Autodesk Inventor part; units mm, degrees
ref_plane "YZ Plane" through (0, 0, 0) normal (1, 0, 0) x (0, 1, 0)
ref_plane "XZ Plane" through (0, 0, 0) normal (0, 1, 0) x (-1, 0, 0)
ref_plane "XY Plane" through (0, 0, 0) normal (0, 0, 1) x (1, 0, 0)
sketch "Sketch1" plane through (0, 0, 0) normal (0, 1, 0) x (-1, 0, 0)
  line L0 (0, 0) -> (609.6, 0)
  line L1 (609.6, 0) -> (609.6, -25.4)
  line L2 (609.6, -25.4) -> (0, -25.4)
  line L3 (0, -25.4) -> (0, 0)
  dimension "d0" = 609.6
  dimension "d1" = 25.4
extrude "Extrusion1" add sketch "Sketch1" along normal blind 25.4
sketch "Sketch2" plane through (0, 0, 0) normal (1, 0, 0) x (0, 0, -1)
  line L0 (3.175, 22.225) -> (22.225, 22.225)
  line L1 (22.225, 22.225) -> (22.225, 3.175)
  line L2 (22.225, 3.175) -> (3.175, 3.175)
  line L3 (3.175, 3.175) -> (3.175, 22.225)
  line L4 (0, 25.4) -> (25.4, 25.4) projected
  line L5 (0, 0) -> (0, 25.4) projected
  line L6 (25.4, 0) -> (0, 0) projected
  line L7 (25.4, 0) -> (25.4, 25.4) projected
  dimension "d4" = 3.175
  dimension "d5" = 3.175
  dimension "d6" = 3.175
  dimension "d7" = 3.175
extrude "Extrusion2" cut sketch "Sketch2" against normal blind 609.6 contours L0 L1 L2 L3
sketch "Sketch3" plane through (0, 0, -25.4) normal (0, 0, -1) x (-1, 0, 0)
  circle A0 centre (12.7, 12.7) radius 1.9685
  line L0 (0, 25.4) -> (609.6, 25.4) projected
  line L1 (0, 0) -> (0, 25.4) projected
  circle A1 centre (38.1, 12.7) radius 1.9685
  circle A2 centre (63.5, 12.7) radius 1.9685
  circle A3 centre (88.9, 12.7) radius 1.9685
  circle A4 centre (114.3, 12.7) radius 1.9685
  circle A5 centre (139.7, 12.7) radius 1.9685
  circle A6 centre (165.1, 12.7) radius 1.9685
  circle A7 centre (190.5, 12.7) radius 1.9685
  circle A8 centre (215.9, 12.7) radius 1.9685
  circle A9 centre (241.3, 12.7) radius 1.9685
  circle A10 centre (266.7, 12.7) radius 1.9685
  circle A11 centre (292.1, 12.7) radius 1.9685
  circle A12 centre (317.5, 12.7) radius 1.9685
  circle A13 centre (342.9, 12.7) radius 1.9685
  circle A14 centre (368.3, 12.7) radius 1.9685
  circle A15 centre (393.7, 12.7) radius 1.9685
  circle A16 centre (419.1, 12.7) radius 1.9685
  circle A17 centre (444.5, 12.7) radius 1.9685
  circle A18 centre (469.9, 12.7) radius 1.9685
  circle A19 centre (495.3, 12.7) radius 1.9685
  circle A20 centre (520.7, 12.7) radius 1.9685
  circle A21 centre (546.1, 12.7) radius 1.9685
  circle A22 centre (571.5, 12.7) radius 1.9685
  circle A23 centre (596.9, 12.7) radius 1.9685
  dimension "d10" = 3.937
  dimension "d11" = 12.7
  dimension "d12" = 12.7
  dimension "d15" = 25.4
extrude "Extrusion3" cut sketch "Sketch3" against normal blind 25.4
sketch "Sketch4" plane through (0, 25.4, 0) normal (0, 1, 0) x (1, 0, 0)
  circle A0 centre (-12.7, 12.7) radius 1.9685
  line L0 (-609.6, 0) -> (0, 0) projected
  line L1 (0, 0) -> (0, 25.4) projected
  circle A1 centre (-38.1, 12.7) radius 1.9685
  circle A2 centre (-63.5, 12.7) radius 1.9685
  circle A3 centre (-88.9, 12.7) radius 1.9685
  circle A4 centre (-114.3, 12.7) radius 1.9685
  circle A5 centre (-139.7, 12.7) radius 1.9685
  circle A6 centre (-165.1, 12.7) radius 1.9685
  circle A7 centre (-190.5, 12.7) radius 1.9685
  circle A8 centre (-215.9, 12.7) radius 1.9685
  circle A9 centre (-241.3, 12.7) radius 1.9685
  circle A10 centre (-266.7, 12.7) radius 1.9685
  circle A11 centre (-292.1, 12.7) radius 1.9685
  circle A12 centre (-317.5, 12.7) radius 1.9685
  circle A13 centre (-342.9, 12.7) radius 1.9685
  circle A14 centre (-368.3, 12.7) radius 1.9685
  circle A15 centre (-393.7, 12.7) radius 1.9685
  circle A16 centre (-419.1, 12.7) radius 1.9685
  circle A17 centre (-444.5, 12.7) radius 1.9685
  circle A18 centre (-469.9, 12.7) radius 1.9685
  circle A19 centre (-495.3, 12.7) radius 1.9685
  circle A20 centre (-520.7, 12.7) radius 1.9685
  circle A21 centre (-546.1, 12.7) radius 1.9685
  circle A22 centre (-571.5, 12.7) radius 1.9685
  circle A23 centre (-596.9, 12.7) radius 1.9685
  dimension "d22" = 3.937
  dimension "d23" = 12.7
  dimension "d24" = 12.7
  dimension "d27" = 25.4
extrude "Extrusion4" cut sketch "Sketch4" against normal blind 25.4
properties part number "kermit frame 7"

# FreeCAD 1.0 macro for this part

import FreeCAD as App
import Part
import Sketcher
Q = App.Units.Quantity


def add_polygon(sketch, points):
    """Adds a closed chain of lines whose ends are joined by coincident constraints."""
    first, n = sketch.GeometryCount, len(points)
    for a, b in zip(points, points[1:] + points[:1]):
        sketch.addGeometry(Part.LineSegment(App.Vector(*a, 0), App.Vector(*b, 0)), False)
    for i in range(n):
        sketch.addConstraint(Sketcher.Constraint("Coincident", first + i, 2, first + (i + 1) % n, 1))

doc = App.newDocument("Part")
params = doc.addObject("Spreadsheet::Sheet", "Params")
for row, (alias, value) in enumerate([
    ("sketch1_width", "24 in"),
    ("sketch1_height", "1 in"),
    ("pad1_length", "1 in"),
    ("sketch2_width", "0.75 in"),
    ("pocket1_length", "24 in"),
    ("sketch3_diameter", "0.155 in"),
    ("pocket2_length", "1 in"),
    ("sketch4_diameter", "0.155 in"),
    ("pocket3_length", "1 in"),
], start=1):
    params.set(f"A{row}", alias)
    params.set(f"B{row}", "=" + value)
    params.setAlias(f"B{row}", alias)

body = doc.addObject("PartDesign::Body", "Body")

# Sketch on XZ plane
sketch1 = body.newObject("Sketcher::SketchObject", "Sketch")
sketch1.AttachmentSupport = (doc.getObject("XZ_Plane"), [""])
sketch1.MapMode = "FlatFace"
add_polygon(sketch1, [(-609.6, 0), (0, 0), (0, -25.4), (-609.6, -25.4)])  # lines 0-3
sketch1.addConstraint([
    Sketcher.Constraint("Horizontal", 0),
    Sketcher.Constraint("Vertical", 1),
    Sketcher.Constraint("Horizontal", 2),
    Sketcher.Constraint("Vertical", 3),
    Sketcher.Constraint("Coincident", 0, 2, -1, 1),
    Sketcher.Constraint("DistanceX", 0, 1, 0, 2, Q("24 in")),
    Sketcher.Constraint("DistanceY", 1, 2, 1, 1, Q("1 in")),
])
sketch1.setExpression("Constraints[9]", "Params.sketch1_width")
sketch1.setExpression("Constraints[10]", "Params.sketch1_height")
pad1 = body.newObject("PartDesign::Pad", "Pad")
pad1.Profile = sketch1
pad1.setExpression("Length", "Params.pad1_length")
pad1.Reversed = True

# Sketch on YZ plane
sketch2 = body.newObject("Sketcher::SketchObject", "Sketch001")
sketch2.AttachmentSupport = (doc.getObject("YZ_Plane"), [""])
sketch2.MapMode = "FlatFace"
add_polygon(sketch2, [(22.225, -22.225), (22.225, -3.175), (3.175, -3.175), (3.175, -22.225)])  # lines 0-3
sketch2.addConstraint([
    Sketcher.Constraint("Vertical", 0),
    Sketcher.Constraint("Horizontal", 1),
    Sketcher.Constraint("Vertical", 2),
    Sketcher.Constraint("Horizontal", 3),
    Sketcher.Constraint("Equal", 3, 0),
    Sketcher.Constraint("DistanceY", 0, 2, -1, 1, Q("0.125 in")),
    Sketcher.Constraint("DistanceX", -1, 1, 1, 2, Q("0.125 in")),
    Sketcher.Constraint("DistanceX", 1, 2, 1, 1, Q("0.75 in")),
])
sketch2.setExpression("Constraints[11]", "Params.sketch2_width")
pocket1 = body.newObject("PartDesign::Pocket", "Pocket")
pocket1.Profile = sketch2
pocket1.setExpression("Length", "Params.pocket1_length")

# Sketch on XY plane
sketch3 = body.newObject("Sketcher::SketchObject", "Sketch002")
sketch3.AttachmentSupport = (doc.getObject("XY_Plane"), [""])
sketch3.MapMode = "FlatFace"
sketch3.AttachmentOffset = App.Placement(App.Vector(0, 0, -1 * 25.4), App.Rotation())
sketch3.addGeometry([
    Part.Circle(App.Vector(-12.7, 12.7, 0), App.Vector(0, 0, 1), 1.9685),  # 0
    Part.Circle(App.Vector(-38.1, 12.7, 0), App.Vector(0, 0, 1), 1.9685),  # 1
    Part.Circle(App.Vector(-63.5, 12.7, 0), App.Vector(0, 0, 1), 1.9685),  # 2
    Part.Circle(App.Vector(-88.9, 12.7, 0), App.Vector(0, 0, 1), 1.9685),  # 3
    Part.Circle(App.Vector(-114.3, 12.7, 0), App.Vector(0, 0, 1), 1.9685),  # 4
    Part.Circle(App.Vector(-139.7, 12.7, 0), App.Vector(0, 0, 1), 1.9685),  # 5
    Part.Circle(App.Vector(-165.1, 12.7, 0), App.Vector(0, 0, 1), 1.9685),  # 6
    Part.Circle(App.Vector(-190.5, 12.7, 0), App.Vector(0, 0, 1), 1.9685),  # 7
    Part.Circle(App.Vector(-215.9, 12.7, 0), App.Vector(0, 0, 1), 1.9685),  # 8
    Part.Circle(App.Vector(-241.3, 12.7, 0), App.Vector(0, 0, 1), 1.9685),  # 9
    Part.Circle(App.Vector(-266.7, 12.7, 0), App.Vector(0, 0, 1), 1.9685),  # 10
    Part.Circle(App.Vector(-292.1, 12.7, 0), App.Vector(0, 0, 1), 1.9685),  # 11
    Part.Circle(App.Vector(-317.5, 12.7, 0), App.Vector(0, 0, 1), 1.9685),  # 12
    Part.Circle(App.Vector(-342.9, 12.7, 0), App.Vector(0, 0, 1), 1.9685),  # 13
    Part.Circle(App.Vector(-368.3, 12.7, 0), App.Vector(0, 0, 1), 1.9685),  # 14
    Part.Circle(App.Vector(-393.7, 12.7, 0), App.Vector(0, 0, 1), 1.9685),  # 15
    Part.Circle(App.Vector(-419.1, 12.7, 0), App.Vector(0, 0, 1), 1.9685),  # 16
    Part.Circle(App.Vector(-444.5, 12.7, 0), App.Vector(0, 0, 1), 1.9685),  # 17
    Part.Circle(App.Vector(-469.9, 12.7, 0), App.Vector(0, 0, 1), 1.9685),  # 18
    Part.Circle(App.Vector(-495.3, 12.7, 0), App.Vector(0, 0, 1), 1.9685),  # 19
    Part.Circle(App.Vector(-520.7, 12.7, 0), App.Vector(0, 0, 1), 1.9685),  # 20
    Part.Circle(App.Vector(-546.1, 12.7, 0), App.Vector(0, 0, 1), 1.9685),  # 21
    Part.Circle(App.Vector(-571.5, 12.7, 0), App.Vector(0, 0, 1), 1.9685),  # 22
    Part.Circle(App.Vector(-596.9, 12.7, 0), App.Vector(0, 0, 1), 1.9685),  # 23
], False)
sketch3.addConstraint([
    Sketcher.Constraint("Equal", 0, 1),
    Sketcher.Constraint("Equal", 1, 2),
    Sketcher.Constraint("Equal", 2, 3),
    Sketcher.Constraint("Equal", 3, 4),
    Sketcher.Constraint("Equal", 4, 5),
    Sketcher.Constraint("Equal", 5, 6),
    Sketcher.Constraint("Equal", 6, 7),
    Sketcher.Constraint("Equal", 7, 8),
    Sketcher.Constraint("Equal", 8, 9),
    Sketcher.Constraint("Equal", 9, 10),
    Sketcher.Constraint("Equal", 10, 11),
    Sketcher.Constraint("Equal", 11, 12),
    Sketcher.Constraint("Equal", 12, 13),
    Sketcher.Constraint("Equal", 13, 14),
    Sketcher.Constraint("Equal", 14, 15),
    Sketcher.Constraint("Equal", 15, 16),
    Sketcher.Constraint("Equal", 16, 17),
    Sketcher.Constraint("Equal", 17, 18),
    Sketcher.Constraint("Equal", 18, 19),
    Sketcher.Constraint("Equal", 19, 20),
    Sketcher.Constraint("Equal", 20, 21),
    Sketcher.Constraint("Equal", 21, 22),
    Sketcher.Constraint("Equal", 22, 23),
    Sketcher.Constraint("Horizontal", 0, 3, 1, 3),
    Sketcher.Constraint("Horizontal", 1, 3, 2, 3),
    Sketcher.Constraint("Horizontal", 2, 3, 3, 3),
    Sketcher.Constraint("Horizontal", 3, 3, 4, 3),
    Sketcher.Constraint("Horizontal", 4, 3, 5, 3),
    Sketcher.Constraint("Horizontal", 5, 3, 6, 3),
    Sketcher.Constraint("Horizontal", 6, 3, 7, 3),
    Sketcher.Constraint("Horizontal", 7, 3, 8, 3),
    Sketcher.Constraint("Horizontal", 8, 3, 9, 3),
    Sketcher.Constraint("Horizontal", 9, 3, 10, 3),
    Sketcher.Constraint("Horizontal", 10, 3, 11, 3),
    Sketcher.Constraint("Horizontal", 11, 3, 12, 3),
    Sketcher.Constraint("Horizontal", 12, 3, 13, 3),
    Sketcher.Constraint("Horizontal", 13, 3, 14, 3),
    Sketcher.Constraint("Horizontal", 14, 3, 15, 3),
    Sketcher.Constraint("Horizontal", 15, 3, 16, 3),
    Sketcher.Constraint("Horizontal", 16, 3, 17, 3),
    Sketcher.Constraint("Horizontal", 17, 3, 18, 3),
    Sketcher.Constraint("Horizontal", 18, 3, 19, 3),
    Sketcher.Constraint("Horizontal", 19, 3, 20, 3),
    Sketcher.Constraint("Horizontal", 20, 3, 21, 3),
    Sketcher.Constraint("Horizontal", 21, 3, 22, 3),
    Sketcher.Constraint("Horizontal", 22, 3, 23, 3),
    Sketcher.Constraint("Diameter", 0, Q("0.155 in")),
    Sketcher.Constraint("DistanceX", 1, 3, 0, 3, Q("1 in")),
    Sketcher.Constraint("DistanceX", 2, 3, 1, 3, Q("1 in")),
    Sketcher.Constraint("DistanceX", 3, 3, 2, 3, Q("1 in")),
    Sketcher.Constraint("DistanceX", 4, 3, 3, 3, Q("1 in")),
    Sketcher.Constraint("DistanceX", 5, 3, 4, 3, Q("1 in")),
    Sketcher.Constraint("DistanceX", 6, 3, 5, 3, Q("1 in")),
    Sketcher.Constraint("DistanceX", 7, 3, 6, 3, Q("1 in")),
    Sketcher.Constraint("DistanceX", 8, 3, 7, 3, Q("1 in")),
    Sketcher.Constraint("DistanceX", 9, 3, 8, 3, Q("1 in")),
    Sketcher.Constraint("DistanceX", 10, 3, 9, 3, Q("1 in")),
    Sketcher.Constraint("DistanceX", 11, 3, 10, 3, Q("1 in")),
    Sketcher.Constraint("DistanceX", 12, 3, 11, 3, Q("1 in")),
    Sketcher.Constraint("DistanceX", 13, 3, 12, 3, Q("1 in")),
    Sketcher.Constraint("DistanceX", 14, 3, 13, 3, Q("1 in")),
    Sketcher.Constraint("DistanceX", 15, 3, 14, 3, Q("1 in")),
    Sketcher.Constraint("DistanceX", 16, 3, 15, 3, Q("1 in")),
    Sketcher.Constraint("DistanceX", 17, 3, 16, 3, Q("1 in")),
    Sketcher.Constraint("DistanceX", 18, 3, 17, 3, Q("1 in")),
    Sketcher.Constraint("DistanceX", 19, 3, 18, 3, Q("1 in")),
    Sketcher.Constraint("DistanceX", 20, 3, 19, 3, Q("1 in")),
    Sketcher.Constraint("DistanceX", 21, 3, 20, 3, Q("1 in")),
    Sketcher.Constraint("DistanceX", 22, 3, 21, 3, Q("1 in")),
    Sketcher.Constraint("DistanceX", 23, 3, 22, 3, Q("1 in")),
    Sketcher.Constraint("DistanceX", 0, 3, -1, 1, Q("0.5 in")),
    Sketcher.Constraint("DistanceY", -1, 1, 0, 3, Q("0.5 in")),
])
sketch3.setExpression("Constraints[46]", "Params.sketch3_diameter")
pocket2 = body.newObject("PartDesign::Pocket", "Pocket001")
pocket2.Profile = sketch3
pocket2.setExpression("Length", "Params.pocket2_length")
pocket2.Reversed = True

# Sketch on XZ plane
sketch4 = body.newObject("Sketcher::SketchObject", "Sketch003")
sketch4.AttachmentSupport = (doc.getObject("XZ_Plane"), [""])
sketch4.MapMode = "FlatFace"
sketch4.AttachmentOffset = App.Placement(App.Vector(0, 0, -1 * 25.4), App.Rotation())
sketch4.addGeometry([
    Part.Circle(App.Vector(-12.7, -12.7, 0), App.Vector(0, 0, 1), 1.9685),  # 0
    Part.Circle(App.Vector(-38.1, -12.7, 0), App.Vector(0, 0, 1), 1.9685),  # 1
    Part.Circle(App.Vector(-63.5, -12.7, 0), App.Vector(0, 0, 1), 1.9685),  # 2
    Part.Circle(App.Vector(-88.9, -12.7, 0), App.Vector(0, 0, 1), 1.9685),  # 3
    Part.Circle(App.Vector(-114.3, -12.7, 0), App.Vector(0, 0, 1), 1.9685),  # 4
    Part.Circle(App.Vector(-139.7, -12.7, 0), App.Vector(0, 0, 1), 1.9685),  # 5
    Part.Circle(App.Vector(-165.1, -12.7, 0), App.Vector(0, 0, 1), 1.9685),  # 6
    Part.Circle(App.Vector(-190.5, -12.7, 0), App.Vector(0, 0, 1), 1.9685),  # 7
    Part.Circle(App.Vector(-215.9, -12.7, 0), App.Vector(0, 0, 1), 1.9685),  # 8
    Part.Circle(App.Vector(-241.3, -12.7, 0), App.Vector(0, 0, 1), 1.9685),  # 9
    Part.Circle(App.Vector(-266.7, -12.7, 0), App.Vector(0, 0, 1), 1.9685),  # 10
    Part.Circle(App.Vector(-292.1, -12.7, 0), App.Vector(0, 0, 1), 1.9685),  # 11
    Part.Circle(App.Vector(-317.5, -12.7, 0), App.Vector(0, 0, 1), 1.9685),  # 12
    Part.Circle(App.Vector(-342.9, -12.7, 0), App.Vector(0, 0, 1), 1.9685),  # 13
    Part.Circle(App.Vector(-368.3, -12.7, 0), App.Vector(0, 0, 1), 1.9685),  # 14
    Part.Circle(App.Vector(-393.7, -12.7, 0), App.Vector(0, 0, 1), 1.9685),  # 15
    Part.Circle(App.Vector(-419.1, -12.7, 0), App.Vector(0, 0, 1), 1.9685),  # 16
    Part.Circle(App.Vector(-444.5, -12.7, 0), App.Vector(0, 0, 1), 1.9685),  # 17
    Part.Circle(App.Vector(-469.9, -12.7, 0), App.Vector(0, 0, 1), 1.9685),  # 18
    Part.Circle(App.Vector(-495.3, -12.7, 0), App.Vector(0, 0, 1), 1.9685),  # 19
    Part.Circle(App.Vector(-520.7, -12.7, 0), App.Vector(0, 0, 1), 1.9685),  # 20
    Part.Circle(App.Vector(-546.1, -12.7, 0), App.Vector(0, 0, 1), 1.9685),  # 21
    Part.Circle(App.Vector(-571.5, -12.7, 0), App.Vector(0, 0, 1), 1.9685),  # 22
    Part.Circle(App.Vector(-596.9, -12.7, 0), App.Vector(0, 0, 1), 1.9685),  # 23
], False)
sketch4.addConstraint([
    Sketcher.Constraint("Equal", 0, 1),
    Sketcher.Constraint("Equal", 1, 2),
    Sketcher.Constraint("Equal", 2, 3),
    Sketcher.Constraint("Equal", 3, 4),
    Sketcher.Constraint("Equal", 4, 5),
    Sketcher.Constraint("Equal", 5, 6),
    Sketcher.Constraint("Equal", 6, 7),
    Sketcher.Constraint("Equal", 7, 8),
    Sketcher.Constraint("Equal", 8, 9),
    Sketcher.Constraint("Equal", 9, 10),
    Sketcher.Constraint("Equal", 10, 11),
    Sketcher.Constraint("Equal", 11, 12),
    Sketcher.Constraint("Equal", 12, 13),
    Sketcher.Constraint("Equal", 13, 14),
    Sketcher.Constraint("Equal", 14, 15),
    Sketcher.Constraint("Equal", 15, 16),
    Sketcher.Constraint("Equal", 16, 17),
    Sketcher.Constraint("Equal", 17, 18),
    Sketcher.Constraint("Equal", 18, 19),
    Sketcher.Constraint("Equal", 19, 20),
    Sketcher.Constraint("Equal", 20, 21),
    Sketcher.Constraint("Equal", 21, 22),
    Sketcher.Constraint("Equal", 22, 23),
    Sketcher.Constraint("Horizontal", 0, 3, 1, 3),
    Sketcher.Constraint("Horizontal", 1, 3, 2, 3),
    Sketcher.Constraint("Horizontal", 2, 3, 3, 3),
    Sketcher.Constraint("Horizontal", 3, 3, 4, 3),
    Sketcher.Constraint("Horizontal", 4, 3, 5, 3),
    Sketcher.Constraint("Horizontal", 5, 3, 6, 3),
    Sketcher.Constraint("Horizontal", 6, 3, 7, 3),
    Sketcher.Constraint("Horizontal", 7, 3, 8, 3),
    Sketcher.Constraint("Horizontal", 8, 3, 9, 3),
    Sketcher.Constraint("Horizontal", 9, 3, 10, 3),
    Sketcher.Constraint("Horizontal", 10, 3, 11, 3),
    Sketcher.Constraint("Horizontal", 11, 3, 12, 3),
    Sketcher.Constraint("Horizontal", 12, 3, 13, 3),
    Sketcher.Constraint("Horizontal", 13, 3, 14, 3),
    Sketcher.Constraint("Horizontal", 14, 3, 15, 3),
    Sketcher.Constraint("Horizontal", 15, 3, 16, 3),
    Sketcher.Constraint("Horizontal", 16, 3, 17, 3),
    Sketcher.Constraint("Horizontal", 17, 3, 18, 3),
    Sketcher.Constraint("Horizontal", 18, 3, 19, 3),
    Sketcher.Constraint("Horizontal", 19, 3, 20, 3),
    Sketcher.Constraint("Horizontal", 20, 3, 21, 3),
    Sketcher.Constraint("Horizontal", 21, 3, 22, 3),
    Sketcher.Constraint("Horizontal", 22, 3, 23, 3),
    Sketcher.Constraint("Diameter", 0, Q("0.155 in")),
    Sketcher.Constraint("DistanceX", 1, 3, 0, 3, Q("1 in")),
    Sketcher.Constraint("DistanceX", 2, 3, 1, 3, Q("1 in")),
    Sketcher.Constraint("DistanceX", 3, 3, 2, 3, Q("1 in")),
    Sketcher.Constraint("DistanceX", 4, 3, 3, 3, Q("1 in")),
    Sketcher.Constraint("DistanceX", 5, 3, 4, 3, Q("1 in")),
    Sketcher.Constraint("DistanceX", 6, 3, 5, 3, Q("1 in")),
    Sketcher.Constraint("DistanceX", 7, 3, 6, 3, Q("1 in")),
    Sketcher.Constraint("DistanceX", 8, 3, 7, 3, Q("1 in")),
    Sketcher.Constraint("DistanceX", 9, 3, 8, 3, Q("1 in")),
    Sketcher.Constraint("DistanceX", 10, 3, 9, 3, Q("1 in")),
    Sketcher.Constraint("DistanceX", 11, 3, 10, 3, Q("1 in")),
    Sketcher.Constraint("DistanceX", 12, 3, 11, 3, Q("1 in")),
    Sketcher.Constraint("DistanceX", 13, 3, 12, 3, Q("1 in")),
    Sketcher.Constraint("DistanceX", 14, 3, 13, 3, Q("1 in")),
    Sketcher.Constraint("DistanceX", 15, 3, 14, 3, Q("1 in")),
    Sketcher.Constraint("DistanceX", 16, 3, 15, 3, Q("1 in")),
    Sketcher.Constraint("DistanceX", 17, 3, 16, 3, Q("1 in")),
    Sketcher.Constraint("DistanceX", 18, 3, 17, 3, Q("1 in")),
    Sketcher.Constraint("DistanceX", 19, 3, 18, 3, Q("1 in")),
    Sketcher.Constraint("DistanceX", 20, 3, 19, 3, Q("1 in")),
    Sketcher.Constraint("DistanceX", 21, 3, 20, 3, Q("1 in")),
    Sketcher.Constraint("DistanceX", 22, 3, 21, 3, Q("1 in")),
    Sketcher.Constraint("DistanceX", 23, 3, 22, 3, Q("1 in")),
    Sketcher.Constraint("DistanceX", 0, 3, -1, 1, Q("0.5 in")),
    Sketcher.Constraint("DistanceY", 0, 3, -1, 1, Q("0.5 in")),
])
sketch4.setExpression("Constraints[46]", "Params.sketch4_diameter")
pocket3 = body.newObject("PartDesign::Pocket", "Pocket002")
pocket3.Profile = sketch4
pocket3.setExpression("Length", "Params.pocket3_length")
pocket3.Reversed = True

doc.recompute()
